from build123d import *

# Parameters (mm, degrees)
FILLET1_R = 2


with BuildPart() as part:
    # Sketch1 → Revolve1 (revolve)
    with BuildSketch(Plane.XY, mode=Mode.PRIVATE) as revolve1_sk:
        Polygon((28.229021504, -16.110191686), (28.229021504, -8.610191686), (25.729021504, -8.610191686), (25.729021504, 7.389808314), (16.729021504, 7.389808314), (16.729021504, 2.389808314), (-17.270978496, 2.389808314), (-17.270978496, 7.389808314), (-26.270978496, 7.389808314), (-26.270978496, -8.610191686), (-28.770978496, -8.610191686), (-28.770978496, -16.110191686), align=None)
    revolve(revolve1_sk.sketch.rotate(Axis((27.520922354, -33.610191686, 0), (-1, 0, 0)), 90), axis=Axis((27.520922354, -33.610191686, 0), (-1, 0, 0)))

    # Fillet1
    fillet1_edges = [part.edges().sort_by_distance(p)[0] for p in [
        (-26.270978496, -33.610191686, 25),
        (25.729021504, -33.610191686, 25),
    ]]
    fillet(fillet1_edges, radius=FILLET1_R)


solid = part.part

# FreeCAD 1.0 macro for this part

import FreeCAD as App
import Part
import Sketcher

V = App.Vector
Q = App.Units.Quantity


def edges_at(feature, points):
    """Names of the edges that pass closest to the given points."""
    edges = feature.Shape.Edges
    near = lambda p: min(range(len(edges)), key=lambda i: edges[i].distToShape(Part.Vertex(*p))[0])
    return sorted({f"Edge{near(p) + 1}" for p in points})


def add_polygon(sketch, points):
    """Adds a closed chain of lines whose ends are joined by coincident constraints."""
    first, n = sketch.GeometryCount, len(points)
    for a, b in zip(points, points[1:] + points[:1]):
        sketch.addGeometry(Part.LineSegment(App.Vector(*a, 0), App.Vector(*b, 0)), False)
    for i in range(n):
        sketch.addConstraint(Sketcher.Constraint("Coincident", first + i, 2, first + (i + 1) % n, 1))

doc = App.newDocument("Part")
params = doc.addObject("Spreadsheet::Sheet", "Params")
for row, (alias, value) in enumerate([
    ("sketch1_width", "9 mm"),
    ("sketch1_width2", "34 mm"),
    ("sketch1_width3", "57 mm"),
    ("sketch1_height", "16 mm"),
    ("sketch1_height2", "5 mm"),
    ("revolution_angle", "360 deg"),
    ("fillet_radius", "2 mm"),
], start=1):
    params.set(f"A{row}", alias)
    params.set(f"B{row}", "=" + value)
    params.setAlias(f"B{row}", alias)

body = doc.addObject("PartDesign::Body", "Body")

# Sketch on XY plane
sketch1 = doc.addObject("Sketcher::SketchObject", "Sketch")
body.addObject(sketch1)
sketch1.AttachmentSupport = (doc.XY_Plane, [""])
sketch1.MapMode = "FlatFace"
add_polygon(sketch1, [(28.2, -16.1), (28.2, -8.6), (25.7, -8.6), (25.7, 7.4), (16.7, 7.4), (16.7, 2.4), (-17.3, 2.4), (-17.3, 7.4), (-26.3, 7.4), (-26.3, -8.6), (-28.8, -8.6), (-28.8, -16.1)])  # lines 0-11
sketch1.addGeometry(Part.LineSegment(V(28.2, -33.6, 0), V(-28.8, -33.6, 0)), True)  # axis
sketch1.addConstraint(Sketcher.Constraint("Vertical", 0))
sketch1.addConstraint(Sketcher.Constraint("Horizontal", 1))
sketch1.addConstraint(Sketcher.Constraint("Vertical", 2))
sketch1.addConstraint(Sketcher.Constraint("Horizontal", 3))
sketch1.addConstraint(Sketcher.Constraint("Vertical", 4))
sketch1.addConstraint(Sketcher.Constraint("Horizontal", 5))
sketch1.addConstraint(Sketcher.Constraint("Vertical", 6))
sketch1.addConstraint(Sketcher.Constraint("Horizontal", 7))
sketch1.addConstraint(Sketcher.Constraint("Vertical", 8))
sketch1.addConstraint(Sketcher.Constraint("Horizontal", 9))
sketch1.addConstraint(Sketcher.Constraint("Vertical", 10))
sketch1.addConstraint(Sketcher.Constraint("Horizontal", 11))
sketch1.addConstraint(Sketcher.Constraint("Horizontal", 12))
sketch1.addConstraint(Sketcher.Constraint("Horizontal", 3, 2, 6, 2))
sketch1.addConstraint(Sketcher.Constraint("Horizontal", 1, 2, 8, 2))
sketch1.addConstraint(Sketcher.Constraint("Vertical", 11, 2, 12, 1))
sketch1.addConstraint(Sketcher.Constraint("Vertical", 10, 2, 12, 2))
sketch1.addConstraint(Sketcher.Constraint("Equal", 3, 7))
sketch1.addConstraint(Sketcher.Constraint("Equal", 1, 9))
sketch1.addConstraint(Sketcher.Constraint("DistanceX", 3, 2, 3, 1, Q("9 mm")))
sketch1.addConstraint(Sketcher.Constraint("DistanceX", 5, 2, 5, 1, Q("34 mm")))
sketch1.addConstraint(Sketcher.Constraint("DistanceX", 11, 1, 11, 2, Q("57 mm")))
sketch1.addConstraint(Sketcher.Constraint("DistanceY", 2, 1, 2, 2, Q("16 mm")))
sketch1.addConstraint(Sketcher.Constraint("DistanceY", 4, 2, 4, 1, Q("5 mm")))
sketch1.addConstraint(Sketcher.Constraint("DistanceY", 0, 1, 0, 2, Q("7.5 mm")))
sketch1.addConstraint(Sketcher.Constraint("DistanceY", 12, 1, 0, 2, Q("25 mm")))
sketch1.addConstraint(Sketcher.Constraint("DistanceX", -1, 1, 0, 2, Q("28.229022 mm")))
sketch1.addConstraint(Sketcher.Constraint("DistanceY", 0, 2, -1, 1, Q("8.610192 mm")))
sketch1.setExpression("Constraints[31]", "Params.sketch1_width")
sketch1.setExpression("Constraints[32]", "Params.sketch1_width2")
sketch1.setExpression("Constraints[33]", "Params.sketch1_width3")
sketch1.setExpression("Constraints[34]", "Params.sketch1_height")
sketch1.setExpression("Constraints[35]", "Params.sketch1_height2")
revolution = doc.addObject("PartDesign::Revolution", "Revolution")
body.addObject(revolution)
revolution.Profile = sketch1
revolution.ReferenceAxis = (sketch1, ["Axis0"])
revolution.setExpression("Angle", "Params.revolution_angle")
doc.recompute()

fillet = doc.addObject("PartDesign::Fillet", "Fillet")
body.addObject(fillet)
fillet.Base = (revolution, edges_at(revolution, [(-26.271, -33.61, 25), (25.729, -33.61, 25)]))
fillet.setExpression("Radius", "Params.fillet_radius")

doc.recompute()
